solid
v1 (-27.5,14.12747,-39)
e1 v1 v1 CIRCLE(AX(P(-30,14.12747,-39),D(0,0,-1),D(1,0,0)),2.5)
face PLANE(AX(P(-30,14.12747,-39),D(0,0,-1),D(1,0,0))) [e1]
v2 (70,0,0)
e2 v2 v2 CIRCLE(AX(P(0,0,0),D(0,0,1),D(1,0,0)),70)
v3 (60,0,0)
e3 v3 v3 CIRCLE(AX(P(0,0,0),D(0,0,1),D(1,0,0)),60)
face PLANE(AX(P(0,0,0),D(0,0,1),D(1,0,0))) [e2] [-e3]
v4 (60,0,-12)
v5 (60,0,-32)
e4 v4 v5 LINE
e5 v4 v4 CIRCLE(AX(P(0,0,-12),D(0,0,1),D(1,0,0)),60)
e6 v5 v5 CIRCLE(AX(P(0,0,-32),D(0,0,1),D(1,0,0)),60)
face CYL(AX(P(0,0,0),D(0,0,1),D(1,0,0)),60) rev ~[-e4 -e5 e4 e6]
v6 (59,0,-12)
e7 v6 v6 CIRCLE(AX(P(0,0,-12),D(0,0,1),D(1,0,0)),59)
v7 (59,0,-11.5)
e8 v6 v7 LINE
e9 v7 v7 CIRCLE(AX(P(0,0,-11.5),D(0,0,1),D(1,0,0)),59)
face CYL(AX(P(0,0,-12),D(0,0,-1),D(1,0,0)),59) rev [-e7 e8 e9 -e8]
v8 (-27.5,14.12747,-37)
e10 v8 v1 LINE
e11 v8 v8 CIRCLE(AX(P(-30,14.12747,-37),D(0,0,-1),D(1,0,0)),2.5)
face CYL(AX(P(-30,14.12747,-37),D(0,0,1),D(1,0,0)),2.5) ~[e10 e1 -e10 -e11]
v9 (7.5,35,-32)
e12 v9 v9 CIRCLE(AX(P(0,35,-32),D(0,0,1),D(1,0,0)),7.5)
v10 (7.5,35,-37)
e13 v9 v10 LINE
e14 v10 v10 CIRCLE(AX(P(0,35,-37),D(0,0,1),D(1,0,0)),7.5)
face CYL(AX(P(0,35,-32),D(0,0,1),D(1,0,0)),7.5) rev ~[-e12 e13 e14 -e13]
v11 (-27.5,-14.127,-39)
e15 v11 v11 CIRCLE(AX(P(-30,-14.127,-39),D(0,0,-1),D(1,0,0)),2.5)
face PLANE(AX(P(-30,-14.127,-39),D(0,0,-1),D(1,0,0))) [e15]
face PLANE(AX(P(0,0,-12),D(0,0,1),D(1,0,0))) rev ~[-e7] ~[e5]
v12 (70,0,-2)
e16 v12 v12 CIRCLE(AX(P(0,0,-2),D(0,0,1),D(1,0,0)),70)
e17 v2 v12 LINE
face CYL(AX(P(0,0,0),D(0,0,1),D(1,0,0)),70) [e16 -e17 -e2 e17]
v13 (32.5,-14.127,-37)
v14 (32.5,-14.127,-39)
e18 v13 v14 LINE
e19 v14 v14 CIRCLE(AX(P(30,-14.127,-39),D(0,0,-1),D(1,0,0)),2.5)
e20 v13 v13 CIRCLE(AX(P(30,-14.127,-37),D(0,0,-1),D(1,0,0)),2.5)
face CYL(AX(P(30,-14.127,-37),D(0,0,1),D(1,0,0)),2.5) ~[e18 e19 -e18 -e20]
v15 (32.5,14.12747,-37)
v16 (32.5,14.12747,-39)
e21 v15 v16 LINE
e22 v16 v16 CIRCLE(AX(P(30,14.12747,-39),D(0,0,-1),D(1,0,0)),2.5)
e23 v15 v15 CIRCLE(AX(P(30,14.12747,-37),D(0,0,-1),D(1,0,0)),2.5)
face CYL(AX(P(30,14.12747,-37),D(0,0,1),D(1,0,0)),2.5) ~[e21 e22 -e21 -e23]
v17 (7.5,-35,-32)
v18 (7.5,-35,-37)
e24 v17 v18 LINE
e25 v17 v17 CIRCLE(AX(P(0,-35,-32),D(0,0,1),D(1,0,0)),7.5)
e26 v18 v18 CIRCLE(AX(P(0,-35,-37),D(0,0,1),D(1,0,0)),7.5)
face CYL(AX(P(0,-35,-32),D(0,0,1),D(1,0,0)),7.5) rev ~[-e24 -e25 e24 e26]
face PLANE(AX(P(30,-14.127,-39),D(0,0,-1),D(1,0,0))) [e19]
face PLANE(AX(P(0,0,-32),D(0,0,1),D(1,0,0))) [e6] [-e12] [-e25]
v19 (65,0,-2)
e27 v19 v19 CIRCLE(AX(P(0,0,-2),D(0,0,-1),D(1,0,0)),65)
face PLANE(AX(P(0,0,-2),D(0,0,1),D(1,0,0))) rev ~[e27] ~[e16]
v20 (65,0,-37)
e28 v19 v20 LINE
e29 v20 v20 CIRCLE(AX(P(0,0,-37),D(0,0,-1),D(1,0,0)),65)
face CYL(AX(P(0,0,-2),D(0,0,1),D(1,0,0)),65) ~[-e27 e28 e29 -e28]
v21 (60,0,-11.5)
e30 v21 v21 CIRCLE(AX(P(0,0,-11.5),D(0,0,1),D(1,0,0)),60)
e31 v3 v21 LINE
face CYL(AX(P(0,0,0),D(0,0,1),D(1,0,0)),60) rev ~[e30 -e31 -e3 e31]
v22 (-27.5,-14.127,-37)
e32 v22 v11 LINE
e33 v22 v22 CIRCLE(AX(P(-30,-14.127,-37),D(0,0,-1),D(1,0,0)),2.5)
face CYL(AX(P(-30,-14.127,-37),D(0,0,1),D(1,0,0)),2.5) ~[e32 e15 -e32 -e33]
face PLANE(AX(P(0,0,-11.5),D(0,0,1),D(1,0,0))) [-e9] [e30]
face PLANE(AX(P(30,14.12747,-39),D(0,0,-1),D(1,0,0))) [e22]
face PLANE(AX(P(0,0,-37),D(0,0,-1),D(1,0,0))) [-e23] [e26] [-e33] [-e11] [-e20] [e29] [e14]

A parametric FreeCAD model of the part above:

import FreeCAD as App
import Part
import Sketcher
Q = App.Units.Quantity

doc = App.newDocument("Part")
body = doc.addObject("PartDesign::Body", "Body")

sketch1 = body.newObject("Sketcher::SketchObject", "Sketch")
sketch1.AttachmentSupport = (doc.getObject("XY_Plane"), [""])
sketch1.MapMode = "FlatFace"
sketch1.addGeometry(Part.Circle(App.Vector(0, 0, 0), App.Vector(0, 0, 1), 70), False)
sketch1.addConstraint([
    Sketcher.Constraint("Coincident", 0, 3, -1, 1),
    Sketcher.Constraint("Diameter", 0, Q("140 mm")),
])
pad1 = body.newObject("PartDesign::Pad", "Pad")
pad1.Profile = sketch1
pad1.Length = 2
pad1.Reversed = True

sketch2 = body.newObject("Sketcher::SketchObject", "Sketch001")
sketch2.AttachmentSupport = (doc.getObject("XY_Plane"), [""])
sketch2.MapMode = "FlatFace"
sketch2.AttachmentOffset = App.Placement(App.Vector(0, 0, -2), App.Rotation())
sketch2.addGeometry(Part.Circle(App.Vector(0, 0, 0), App.Vector(0, 0, 1), 65), False)
sketch2.addConstraint([
    Sketcher.Constraint("Coincident", 0, 3, -1, 1),
    Sketcher.Constraint("Diameter", 0, Q("130 mm")),
])
pad2 = body.newObject("PartDesign::Pad", "Pad001")
pad2.Profile = sketch2
pad2.Length = 35
pad2.Reversed = True

sketch3 = body.newObject("Sketcher::SketchObject", "Sketch002")
sketch3.AttachmentSupport = (doc.getObject("XY_Plane"), [""])
sketch3.MapMode = "FlatFace"
sketch3.addGeometry(Part.Circle(App.Vector(0, 0, 0), App.Vector(0, 0, 1), 60), False)
sketch3.addConstraint([
    Sketcher.Constraint("Coincident", 0, 3, -1, 1),
    Sketcher.Constraint("Diameter", 0, Q("120 mm")),
])
pocket1 = body.newObject("PartDesign::Pocket", "Pocket")
pocket1.Profile = sketch3
pocket1.Length = 32

sketch4 = body.newObject("Sketcher::SketchObject", "Sketch003")
sketch4.AttachmentSupport = (doc.getObject("XY_Plane"), [""])
sketch4.MapMode = "FlatFace"
sketch4.AttachmentOffset = App.Placement(App.Vector(0, 0, -32), App.Rotation())
sketch4.addGeometry([
    Part.Circle(App.Vector(0, -35, 0), App.Vector(0, 0, 1), 7.5),
    Part.Circle(App.Vector(0, 35, 0), App.Vector(0, 0, 1), 7.5),
], False)
sketch4.addConstraint([
    Sketcher.Constraint("Equal", 0, 1),
    Sketcher.Constraint("Symmetric", 0, 3, 1, 3, -1, 1),
    Sketcher.Constraint("PointOnObject", 0, 3, -2),
    Sketcher.Constraint("Diameter", 0, Q("15 mm")),
    Sketcher.Constraint("DistanceY", 0, 3, -1, 1, Q("35 mm")),
])
pocket2 = body.newObject("PartDesign::Pocket", "Pocket001")
pocket2.Profile = sketch4
pocket2.Type = "ThroughAll"

sketch5 = body.newObject("Sketcher::SketchObject", "Sketch004")
sketch5.AttachmentSupport = (doc.getObject("XY_Plane"), [""])
sketch5.MapMode = "FlatFace"
sketch5.AttachmentOffset = App.Placement(App.Vector(0, 0, -37), App.Rotation())
sketch5.addGeometry([
    Part.Circle(App.Vector(-30, -14.127, 0), App.Vector(0, 0, 1), 2.5),
    Part.Circle(App.Vector(-30, 14.12747, 0), App.Vector(0, 0, 1), 2.5),
    Part.Circle(App.Vector(30, -14.127, 0), App.Vector(0, 0, 1), 2.5),
    Part.Circle(App.Vector(30, 14.12747, 0), App.Vector(0, 0, 1), 2.5),
], False)
sketch5.addConstraint([
    Sketcher.Constraint("Equal", 0, 1),
    Sketcher.Constraint("Equal", 1, 2),
    Sketcher.Constraint("Equal", 2, 3),
    Sketcher.Constraint("Symmetric", 0, 3, 2, 3, -2),
    Sketcher.Constraint("Symmetric", 1, 3, 3, 3, -2),
    Sketcher.Constraint("Vertical", 0, 3, 1, 3),
    Sketcher.Constraint("Diameter", 0, Q("5 mm")),
    Sketcher.Constraint("DistanceX", 0, 3, -1, 1, Q("30 mm")),
    Sketcher.Constraint("DistanceY", 0, 3, -1, 1, Q("14.127 mm")),
    Sketcher.Constraint("DistanceY", -1, 1, 1, 3, Q("14.12747 mm")),
])
pad3 = body.newObject("PartDesign::Pad", "Pad002")
pad3.Profile = sketch5
pad3.Length = 2
pad3.Reversed = True

sketch6 = body.newObject("Sketcher::SketchObject", "Sketch005")
sketch6.AttachmentSupport = (doc.getObject("XY_Plane"), [""])
sketch6.MapMode = "FlatFace"
sketch6.AttachmentOffset = App.Placement(App.Vector(0, 0, -12), App.Rotation())
sketch6.addGeometry([
    Part.Circle(App.Vector(0, 0, 0), App.Vector(0, 0, 1), 62.2),
    Part.Circle(App.Vector(0, 0, 0), App.Vector(0, 0, 1), 59),
], False)
sketch6.addConstraint([
    Sketcher.Constraint("Coincident", 0, 3, -1, 1),
    Sketcher.Constraint("Coincident", 1, 3, -1, 1),
    Sketcher.Constraint("Diameter", 1, Q("118 mm")),
    Sketcher.Constraint("Diameter", 0, Q("124.4 mm")),
])
pad4 = body.newObject("PartDesign::Pad", "Pad003")
pad4.Profile = sketch6
pad4.Length = 0.5

doc.recompute()
